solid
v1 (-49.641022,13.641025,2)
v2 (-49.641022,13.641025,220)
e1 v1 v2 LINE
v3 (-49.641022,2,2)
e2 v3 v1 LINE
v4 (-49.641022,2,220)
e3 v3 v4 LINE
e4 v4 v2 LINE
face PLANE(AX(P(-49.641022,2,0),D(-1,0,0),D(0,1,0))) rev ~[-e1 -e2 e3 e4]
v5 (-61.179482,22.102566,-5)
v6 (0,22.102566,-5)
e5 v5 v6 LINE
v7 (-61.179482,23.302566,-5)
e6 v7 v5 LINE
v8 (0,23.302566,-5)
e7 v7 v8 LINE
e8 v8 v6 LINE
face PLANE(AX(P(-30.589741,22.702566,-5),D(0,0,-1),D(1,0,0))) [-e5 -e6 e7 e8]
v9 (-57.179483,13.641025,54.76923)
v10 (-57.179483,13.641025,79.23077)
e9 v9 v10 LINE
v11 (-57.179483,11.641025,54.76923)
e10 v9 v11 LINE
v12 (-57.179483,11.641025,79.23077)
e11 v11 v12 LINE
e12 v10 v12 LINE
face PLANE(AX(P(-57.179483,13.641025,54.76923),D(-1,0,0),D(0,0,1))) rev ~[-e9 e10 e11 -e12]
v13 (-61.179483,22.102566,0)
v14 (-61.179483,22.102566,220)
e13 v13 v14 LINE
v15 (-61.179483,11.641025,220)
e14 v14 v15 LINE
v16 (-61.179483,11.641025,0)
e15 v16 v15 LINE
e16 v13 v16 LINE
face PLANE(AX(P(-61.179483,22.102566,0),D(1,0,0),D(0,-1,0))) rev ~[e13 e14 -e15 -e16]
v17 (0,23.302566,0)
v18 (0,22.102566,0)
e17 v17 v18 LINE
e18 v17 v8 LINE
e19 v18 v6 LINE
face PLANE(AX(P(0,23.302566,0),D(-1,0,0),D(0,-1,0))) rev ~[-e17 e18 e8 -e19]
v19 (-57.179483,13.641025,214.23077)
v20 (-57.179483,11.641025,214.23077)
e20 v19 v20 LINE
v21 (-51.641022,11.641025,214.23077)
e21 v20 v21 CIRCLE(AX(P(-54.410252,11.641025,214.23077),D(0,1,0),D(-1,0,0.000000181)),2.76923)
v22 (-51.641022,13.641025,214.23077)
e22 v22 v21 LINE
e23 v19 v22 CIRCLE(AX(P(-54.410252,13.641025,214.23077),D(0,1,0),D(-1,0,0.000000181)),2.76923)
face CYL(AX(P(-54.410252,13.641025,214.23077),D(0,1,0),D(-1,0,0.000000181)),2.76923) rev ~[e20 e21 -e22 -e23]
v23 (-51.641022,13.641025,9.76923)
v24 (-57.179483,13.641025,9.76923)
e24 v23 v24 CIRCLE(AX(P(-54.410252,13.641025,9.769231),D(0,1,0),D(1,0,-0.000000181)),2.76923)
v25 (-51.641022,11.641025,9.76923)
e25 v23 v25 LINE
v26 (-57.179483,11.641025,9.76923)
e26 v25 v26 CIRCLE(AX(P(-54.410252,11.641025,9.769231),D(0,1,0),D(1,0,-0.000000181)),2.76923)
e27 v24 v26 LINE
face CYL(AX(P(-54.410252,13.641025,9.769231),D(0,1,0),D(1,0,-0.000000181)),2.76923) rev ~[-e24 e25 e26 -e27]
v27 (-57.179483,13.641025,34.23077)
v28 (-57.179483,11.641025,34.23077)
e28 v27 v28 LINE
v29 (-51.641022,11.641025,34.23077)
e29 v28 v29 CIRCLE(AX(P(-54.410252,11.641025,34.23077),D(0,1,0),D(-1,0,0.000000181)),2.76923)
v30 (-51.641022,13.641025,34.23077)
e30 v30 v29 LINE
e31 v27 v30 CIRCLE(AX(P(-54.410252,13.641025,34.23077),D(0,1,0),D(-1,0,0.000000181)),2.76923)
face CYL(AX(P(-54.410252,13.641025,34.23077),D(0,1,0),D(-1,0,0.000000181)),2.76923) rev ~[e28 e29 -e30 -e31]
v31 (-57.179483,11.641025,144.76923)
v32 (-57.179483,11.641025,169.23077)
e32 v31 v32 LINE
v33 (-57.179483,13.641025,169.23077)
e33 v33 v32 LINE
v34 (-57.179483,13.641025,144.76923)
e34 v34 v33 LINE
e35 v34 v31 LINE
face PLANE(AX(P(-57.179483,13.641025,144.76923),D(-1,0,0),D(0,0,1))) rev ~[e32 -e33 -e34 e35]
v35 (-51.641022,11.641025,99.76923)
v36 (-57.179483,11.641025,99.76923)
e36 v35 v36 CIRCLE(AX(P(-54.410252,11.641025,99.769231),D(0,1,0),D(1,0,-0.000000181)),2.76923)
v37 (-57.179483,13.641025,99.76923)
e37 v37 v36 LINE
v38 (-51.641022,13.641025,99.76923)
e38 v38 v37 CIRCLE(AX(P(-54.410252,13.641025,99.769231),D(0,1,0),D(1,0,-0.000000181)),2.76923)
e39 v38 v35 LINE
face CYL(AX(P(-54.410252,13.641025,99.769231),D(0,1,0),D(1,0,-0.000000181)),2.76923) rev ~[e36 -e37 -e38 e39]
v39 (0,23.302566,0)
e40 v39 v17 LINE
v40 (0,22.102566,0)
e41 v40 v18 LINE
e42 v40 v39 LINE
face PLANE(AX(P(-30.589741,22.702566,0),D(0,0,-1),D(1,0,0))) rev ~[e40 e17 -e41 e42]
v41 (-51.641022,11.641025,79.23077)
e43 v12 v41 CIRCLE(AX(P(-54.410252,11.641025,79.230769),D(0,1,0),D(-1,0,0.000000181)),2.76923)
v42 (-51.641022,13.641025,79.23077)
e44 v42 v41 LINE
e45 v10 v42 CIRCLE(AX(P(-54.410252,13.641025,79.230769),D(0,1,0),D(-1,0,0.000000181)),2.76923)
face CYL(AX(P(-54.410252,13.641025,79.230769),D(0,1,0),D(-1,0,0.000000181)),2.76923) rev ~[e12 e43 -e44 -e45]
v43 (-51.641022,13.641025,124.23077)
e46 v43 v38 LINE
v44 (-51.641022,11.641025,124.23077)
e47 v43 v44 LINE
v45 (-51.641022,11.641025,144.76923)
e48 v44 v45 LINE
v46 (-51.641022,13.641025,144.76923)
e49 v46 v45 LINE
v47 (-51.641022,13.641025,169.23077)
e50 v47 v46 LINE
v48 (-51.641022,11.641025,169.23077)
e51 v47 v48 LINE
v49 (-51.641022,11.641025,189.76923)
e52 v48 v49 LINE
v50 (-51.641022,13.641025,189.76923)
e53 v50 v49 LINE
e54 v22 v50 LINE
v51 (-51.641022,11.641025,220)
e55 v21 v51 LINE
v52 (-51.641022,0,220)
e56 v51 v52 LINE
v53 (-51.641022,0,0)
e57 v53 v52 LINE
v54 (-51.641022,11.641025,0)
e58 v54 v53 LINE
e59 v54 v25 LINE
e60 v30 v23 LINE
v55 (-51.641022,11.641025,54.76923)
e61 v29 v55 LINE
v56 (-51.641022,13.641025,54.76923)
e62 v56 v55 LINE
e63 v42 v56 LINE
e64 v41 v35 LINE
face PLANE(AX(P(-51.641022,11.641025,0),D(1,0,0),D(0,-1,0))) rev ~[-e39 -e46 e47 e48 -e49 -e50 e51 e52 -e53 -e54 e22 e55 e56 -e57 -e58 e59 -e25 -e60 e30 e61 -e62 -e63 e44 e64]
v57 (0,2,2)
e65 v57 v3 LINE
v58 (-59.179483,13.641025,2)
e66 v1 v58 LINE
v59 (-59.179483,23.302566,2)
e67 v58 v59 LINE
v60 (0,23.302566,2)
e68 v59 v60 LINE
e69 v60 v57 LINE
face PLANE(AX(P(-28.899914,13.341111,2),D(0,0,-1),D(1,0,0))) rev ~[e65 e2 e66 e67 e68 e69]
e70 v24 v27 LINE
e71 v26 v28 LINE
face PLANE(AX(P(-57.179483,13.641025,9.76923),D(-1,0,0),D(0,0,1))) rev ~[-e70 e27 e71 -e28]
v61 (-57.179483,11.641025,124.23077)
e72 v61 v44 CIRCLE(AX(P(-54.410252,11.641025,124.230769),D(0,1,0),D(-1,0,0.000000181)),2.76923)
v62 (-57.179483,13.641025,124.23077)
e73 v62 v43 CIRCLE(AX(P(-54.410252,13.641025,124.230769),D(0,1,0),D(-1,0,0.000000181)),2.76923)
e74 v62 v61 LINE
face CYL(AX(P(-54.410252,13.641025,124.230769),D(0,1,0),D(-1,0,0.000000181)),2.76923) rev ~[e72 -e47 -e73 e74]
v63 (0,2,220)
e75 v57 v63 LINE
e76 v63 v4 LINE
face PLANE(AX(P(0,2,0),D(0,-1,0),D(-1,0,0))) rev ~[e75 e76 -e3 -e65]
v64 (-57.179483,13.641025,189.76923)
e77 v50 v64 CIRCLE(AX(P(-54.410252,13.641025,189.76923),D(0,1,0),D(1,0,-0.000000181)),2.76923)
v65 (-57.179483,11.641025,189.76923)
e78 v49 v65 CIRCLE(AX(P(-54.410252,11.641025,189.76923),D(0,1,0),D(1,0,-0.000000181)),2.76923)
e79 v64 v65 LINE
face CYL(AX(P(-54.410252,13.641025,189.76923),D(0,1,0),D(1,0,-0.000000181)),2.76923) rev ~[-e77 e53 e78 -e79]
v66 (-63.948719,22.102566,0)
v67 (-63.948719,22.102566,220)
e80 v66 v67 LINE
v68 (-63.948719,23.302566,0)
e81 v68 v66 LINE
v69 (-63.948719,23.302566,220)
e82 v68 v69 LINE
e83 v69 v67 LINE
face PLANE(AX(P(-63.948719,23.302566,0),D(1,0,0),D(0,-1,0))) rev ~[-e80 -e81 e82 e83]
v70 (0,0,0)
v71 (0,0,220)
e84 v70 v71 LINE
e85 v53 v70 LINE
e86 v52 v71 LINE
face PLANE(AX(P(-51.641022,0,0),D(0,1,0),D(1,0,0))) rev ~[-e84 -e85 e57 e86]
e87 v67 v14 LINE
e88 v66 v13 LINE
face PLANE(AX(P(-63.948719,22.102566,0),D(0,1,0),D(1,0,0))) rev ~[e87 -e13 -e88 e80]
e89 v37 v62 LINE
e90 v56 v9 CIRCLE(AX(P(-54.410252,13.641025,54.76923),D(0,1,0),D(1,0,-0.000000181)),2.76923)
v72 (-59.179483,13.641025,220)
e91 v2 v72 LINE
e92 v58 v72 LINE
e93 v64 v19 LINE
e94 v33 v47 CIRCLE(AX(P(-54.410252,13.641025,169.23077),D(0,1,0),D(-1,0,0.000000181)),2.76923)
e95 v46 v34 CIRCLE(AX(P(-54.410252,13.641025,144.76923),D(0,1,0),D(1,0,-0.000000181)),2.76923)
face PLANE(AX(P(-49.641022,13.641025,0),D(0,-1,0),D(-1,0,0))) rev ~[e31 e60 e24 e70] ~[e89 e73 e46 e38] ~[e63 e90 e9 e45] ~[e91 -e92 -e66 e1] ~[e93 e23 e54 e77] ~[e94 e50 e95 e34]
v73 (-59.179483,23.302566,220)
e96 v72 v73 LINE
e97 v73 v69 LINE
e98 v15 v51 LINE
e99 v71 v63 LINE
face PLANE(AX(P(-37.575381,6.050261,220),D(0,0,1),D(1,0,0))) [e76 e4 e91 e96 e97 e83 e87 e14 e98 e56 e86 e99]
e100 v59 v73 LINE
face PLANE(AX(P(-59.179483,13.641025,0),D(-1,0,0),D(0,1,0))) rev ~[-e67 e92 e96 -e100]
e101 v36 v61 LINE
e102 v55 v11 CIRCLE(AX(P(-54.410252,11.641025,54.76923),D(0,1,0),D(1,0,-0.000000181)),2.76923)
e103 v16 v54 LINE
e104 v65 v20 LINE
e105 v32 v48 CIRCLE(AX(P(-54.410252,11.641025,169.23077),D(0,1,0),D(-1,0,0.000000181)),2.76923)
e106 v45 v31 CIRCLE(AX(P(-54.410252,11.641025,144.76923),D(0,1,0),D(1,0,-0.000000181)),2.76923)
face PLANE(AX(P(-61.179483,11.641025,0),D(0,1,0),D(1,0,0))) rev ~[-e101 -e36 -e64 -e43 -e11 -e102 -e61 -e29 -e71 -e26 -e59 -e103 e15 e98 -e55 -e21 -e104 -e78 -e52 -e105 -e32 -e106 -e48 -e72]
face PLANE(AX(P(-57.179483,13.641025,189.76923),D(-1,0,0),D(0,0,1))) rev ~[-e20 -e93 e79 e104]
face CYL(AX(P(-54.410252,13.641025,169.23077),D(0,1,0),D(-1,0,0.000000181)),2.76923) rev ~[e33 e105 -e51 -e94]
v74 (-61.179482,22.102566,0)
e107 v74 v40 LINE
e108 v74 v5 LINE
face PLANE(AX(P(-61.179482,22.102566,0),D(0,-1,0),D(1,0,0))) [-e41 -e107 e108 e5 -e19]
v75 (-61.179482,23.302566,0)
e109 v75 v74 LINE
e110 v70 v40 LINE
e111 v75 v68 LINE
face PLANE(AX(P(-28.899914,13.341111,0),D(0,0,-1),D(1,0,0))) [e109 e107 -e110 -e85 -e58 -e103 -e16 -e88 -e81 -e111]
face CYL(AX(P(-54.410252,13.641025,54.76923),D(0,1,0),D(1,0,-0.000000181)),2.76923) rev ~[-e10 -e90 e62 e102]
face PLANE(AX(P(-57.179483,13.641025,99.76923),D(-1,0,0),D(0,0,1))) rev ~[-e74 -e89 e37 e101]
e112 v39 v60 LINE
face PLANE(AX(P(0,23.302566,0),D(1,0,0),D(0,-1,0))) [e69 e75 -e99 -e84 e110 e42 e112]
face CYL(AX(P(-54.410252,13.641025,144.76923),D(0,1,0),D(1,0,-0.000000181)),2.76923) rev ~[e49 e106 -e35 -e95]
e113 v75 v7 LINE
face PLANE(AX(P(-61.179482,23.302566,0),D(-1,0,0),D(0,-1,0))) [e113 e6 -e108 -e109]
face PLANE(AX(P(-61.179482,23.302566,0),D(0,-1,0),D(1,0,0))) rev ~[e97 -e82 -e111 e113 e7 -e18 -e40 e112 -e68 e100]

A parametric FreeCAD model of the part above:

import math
import FreeCAD as App
import Part
import Sketcher

doc = App.newDocument("Part")
body = doc.addObject("PartDesign::Body", "Body")

# Sketch on XY plane
sketch1 = body.newObject("Sketcher::SketchObject", "Sketch")
sketch1.AttachmentSupport = (doc.getObject("XY_Plane"), [""])
sketch1.MapMode = "FlatFace"
sketch1.addGeometry([
    Part.LineSegment(App.Vector(-51.6, 0, 0), App.Vector(0, 0, 0)),  # 0
    Part.LineSegment(App.Vector(0, 0, 0), App.Vector(0, 2, 0)),  # 1
    Part.LineSegment(App.Vector(0, 2, 0), App.Vector(-49.6, 2, 0)),  # 2
    Part.LineSegment(App.Vector(-49.6, 2, 0), App.Vector(-49.6, 13.6, 0)),  # 3
    Part.LineSegment(App.Vector(-49.6, 13.6, 0), App.Vector(-59.2, 13.6, 0)),  # 4
    Part.LineSegment(App.Vector(-59.2, 13.6, 0), App.Vector(-59.2, 23.3, 0)),  # 5
    Part.LineSegment(App.Vector(-59.2, 23.3, 0), App.Vector(-63.9, 23.3, 0)),  # 6
    Part.LineSegment(App.Vector(-63.9, 23.3, 0), App.Vector(-63.9, 22.1, 0)),  # 7
    Part.LineSegment(App.Vector(-63.9, 22.1, 0), App.Vector(-61.2, 22.1, 0)),  # 8
    Part.LineSegment(App.Vector(-61.2, 22.1, 0), App.Vector(-61.2, 11.6, 0)),  # 9
    Part.LineSegment(App.Vector(-61.2, 11.6, 0), App.Vector(-51.6, 11.6, 0)),  # 10
    Part.LineSegment(App.Vector(-51.6, 11.6, 0), App.Vector(-51.6, 0, 0)),  # 11
], False)
sketch1.addConstraint([
    Sketcher.Constraint("Coincident", 0, 2, 1, 1),
    Sketcher.Constraint("Coincident", 1, 2, 2, 1),
    Sketcher.Constraint("Coincident", 2, 2, 3, 1),
    Sketcher.Constraint("Coincident", 3, 2, 4, 1),
    Sketcher.Constraint("Coincident", 4, 2, 5, 1),
    Sketcher.Constraint("Coincident", 5, 2, 6, 1),
    Sketcher.Constraint("Coincident", 6, 2, 7, 1),
    Sketcher.Constraint("Coincident", 7, 2, 8, 1),
    Sketcher.Constraint("Coincident", 8, 2, 9, 1),
    Sketcher.Constraint("Coincident", 9, 2, 10, 1),
    Sketcher.Constraint("Coincident", 10, 2, 11, 1),
    Sketcher.Constraint("Coincident", 11, 2, 0, 1),
    Sketcher.Constraint("Horizontal", 0),
    Sketcher.Constraint("Vertical", 1),
    Sketcher.Constraint("Horizontal", 2),
    Sketcher.Constraint("Vertical", 3),
    Sketcher.Constraint("Horizontal", 4),
    Sketcher.Constraint("Vertical", 5),
    Sketcher.Constraint("Horizontal", 6),
    Sketcher.Constraint("Vertical", 7),
    Sketcher.Constraint("Horizontal", 8),
    Sketcher.Constraint("Vertical", 9),
    Sketcher.Constraint("Horizontal", 10),
    Sketcher.Constraint("Vertical", 11),
    Sketcher.Constraint("Coincident", 0, 2, -1, 1),
    Sketcher.Constraint("Equal", 4, 10),
    Sketcher.Constraint("Equal", 3, 11),
    Sketcher.Constraint("DistanceY", 1, 1, 1, 2, 2.0),
    Sketcher.Constraint("DistanceY", 7, 2, 7, 1, 1.2),
    Sketcher.Constraint("DistanceX", 8, 2, 5, 2, 2.0),
    Sketcher.Constraint("DistanceX", 4, 2, 4, 1, 9.538461),
    Sketcher.Constraint("DistanceY", 5, 1, 5, 2, 9.661541),
    Sketcher.Constraint("DistanceX", 0, 1, 0, 2, 51.641022),
    Sketcher.Constraint("DistanceX", 6, 2, 6, 1, 4.769236),
    Sketcher.Constraint("DistanceY", 3, 1, 3, 2, 11.641025),
])
pad1 = body.newObject("PartDesign::Pad", "Pad")
pad1.Profile = sketch1
pad1.Length = 220

# Sketch on XZ plane
sketch2 = body.newObject("Sketcher::SketchObject", "Sketch001")
sketch2.AttachmentSupport = (doc.getObject("XZ_Plane"), [""])
sketch2.MapMode = "FlatFace"
sketch2.AttachmentOffset = App.Placement(App.Vector(0, 0, -13.641025), App.Rotation())
sketch2.addGeometry([
    Part.LineSegment(App.Vector(-57.2, 189.8, 0), App.Vector(-57.2, 214.2, 0)),  # 0
    Part.ArcOfCircle(Part.Circle(App.Vector(-54.4, 214.2, 0), App.Vector(0, 0, 1), 2.8), math.radians(0), math.radians(180)),  # 1
    Part.LineSegment(App.Vector(-51.6, 214.2, 0), App.Vector(-51.6, 189.8, 0)),  # 2
    Part.ArcOfCircle(Part.Circle(App.Vector(-54.4, 189.8, 0), App.Vector(0, 0, 1), 2.8), math.radians(-180), math.radians(0)),  # 3
    Part.LineSegment(App.Vector(-57.2, 144.8, 0), App.Vector(-57.2, 169.2, 0)),  # 4
    Part.ArcOfCircle(Part.Circle(App.Vector(-54.4, 169.2, 0), App.Vector(0, 0, 1), 2.8), math.radians(0), math.radians(180)),  # 5
    Part.LineSegment(App.Vector(-51.6, 169.2, 0), App.Vector(-51.6, 144.8, 0)),  # 6
    Part.ArcOfCircle(Part.Circle(App.Vector(-54.4, 144.8, 0), App.Vector(0, 0, 1), 2.8), math.radians(-180), math.radians(0)),  # 7
    Part.LineSegment(App.Vector(-57.2, 99.8, 0), App.Vector(-57.2, 124.2, 0)),  # 8
    Part.ArcOfCircle(Part.Circle(App.Vector(-54.4, 124.2, 0), App.Vector(0, 0, 1), 2.8), math.radians(0), math.radians(180)),  # 9
    Part.LineSegment(App.Vector(-51.6, 124.2, 0), App.Vector(-51.6, 99.8, 0)),  # 10
    Part.ArcOfCircle(Part.Circle(App.Vector(-54.4, 99.8, 0), App.Vector(0, 0, 1), 2.8), math.radians(-180), math.radians(0)),  # 11
    Part.LineSegment(App.Vector(-57.2, 54.8, 0), App.Vector(-57.2, 79.2, 0)),  # 12
    Part.ArcOfCircle(Part.Circle(App.Vector(-54.4, 79.2, 0), App.Vector(0, 0, 1), 2.8), math.radians(0), math.radians(180)),  # 13
    Part.LineSegment(App.Vector(-51.6, 79.2, 0), App.Vector(-51.6, 54.8, 0)),  # 14
    Part.ArcOfCircle(Part.Circle(App.Vector(-54.4, 54.8, 0), App.Vector(0, 0, 1), 2.8), math.radians(-180), math.radians(0)),  # 15
    Part.LineSegment(App.Vector(-57.2, 9.8, 0), App.Vector(-57.2, 34.2, 0)),  # 16
    Part.ArcOfCircle(Part.Circle(App.Vector(-54.4, 34.2, 0), App.Vector(0, 0, 1), 2.8), math.radians(0), math.radians(180)),  # 17
    Part.LineSegment(App.Vector(-51.6, 34.2, 0), App.Vector(-51.6, 9.8, 0)),  # 18
    Part.ArcOfCircle(Part.Circle(App.Vector(-54.4, 9.8, 0), App.Vector(0, 0, 1), 2.8), math.radians(-180), math.radians(0)),  # 19
], False)
sketch2.addConstraint([
    Sketcher.Constraint("Tangent", 0, 2, 1, 2),
    Sketcher.Constraint("Tangent", 1, 1, 2, 1),
    Sketcher.Constraint("Tangent", 2, 2, 3, 2),
    Sketcher.Constraint("Tangent", 3, 1, 0, 1),
    Sketcher.Constraint("Tangent", 4, 2, 5, 2),
    Sketcher.Constraint("Tangent", 5, 1, 6, 1),
    Sketcher.Constraint("Tangent", 6, 2, 7, 2),
    Sketcher.Constraint("Tangent", 7, 1, 4, 1),
    Sketcher.Constraint("Tangent", 8, 2, 9, 2),
    Sketcher.Constraint("Tangent", 9, 1, 10, 1),
    Sketcher.Constraint("Tangent", 10, 2, 11, 2),
    Sketcher.Constraint("Tangent", 11, 1, 8, 1),
    Sketcher.Constraint("Tangent", 12, 2, 13, 2),
    Sketcher.Constraint("Tangent", 13, 1, 14, 1),
    Sketcher.Constraint("Tangent", 14, 2, 15, 2),
    Sketcher.Constraint("Tangent", 15, 1, 12, 1),
    Sketcher.Constraint("Tangent", 16, 2, 17, 2),
    Sketcher.Constraint("Tangent", 17, 1, 18, 1),
    Sketcher.Constraint("Tangent", 18, 2, 19, 2),
    Sketcher.Constraint("Tangent", 19, 1, 16, 1),
    Sketcher.Constraint("Vertical", 0),
    Sketcher.Constraint("Vertical", 2),
    Sketcher.Constraint("Vertical", 4),
    Sketcher.Constraint("Vertical", 6),
    Sketcher.Constraint("Vertical", 8),
    Sketcher.Constraint("Vertical", 10),
    Sketcher.Constraint("Vertical", 12),
    Sketcher.Constraint("Vertical", 14),
    Sketcher.Constraint("Vertical", 16),
    Sketcher.Constraint("Vertical", 18),
    Sketcher.Constraint("Equal", 3, 5),
    Sketcher.Constraint("Equal", 7, 9),
    Sketcher.Constraint("Equal", 11, 13),
    Sketcher.Constraint("Equal", 15, 17),
    Sketcher.Constraint("Vertical", 3, 3, 5, 3),
    Sketcher.Constraint("Vertical", 7, 3, 9, 3),
    Sketcher.Constraint("Vertical", 11, 3, 13, 3),
    Sketcher.Constraint("Vertical", 15, 3, 17, 3),
    Sketcher.Constraint("Equal", 2, 4),
    Sketcher.Constraint("Equal", 6, 8),
    Sketcher.Constraint("Equal", 10, 12),
    Sketcher.Constraint("Equal", 14, 16),
    Sketcher.Constraint("DistanceY", 5, 3, 1, 3, 45.0),
    Sketcher.Constraint("DistanceY", 9, 3, 5, 3, 45.0),
    Sketcher.Constraint("DistanceY", 13, 3, 9, 3, 45.0),
    Sketcher.Constraint("DistanceY", 17, 3, 13, 3, 45.0),
    Sketcher.Constraint("Radius", 1, 2.76923),
    Sketcher.Constraint("DistanceY", 0, 1, 0, 2, 24.46154),
    Sketcher.Constraint("DistanceY", -1, 1, 1, 3, 214.23077),
    Sketcher.Constraint("DistanceX", 1, 3, -1, 1, 54.410252),
])
pocket1 = body.newObject("PartDesign::Pocket", "Pocket")
pocket1.Profile = sketch2
pocket1.Type = "ThroughAll"
pocket1.Reversed = True

# Sketch on XY plane
sketch3 = body.newObject("Sketcher::SketchObject", "Sketch002")
sketch3.AttachmentSupport = (doc.getObject("XY_Plane"), [""])
sketch3.MapMode = "FlatFace"
sketch3.addGeometry([
    Part.LineSegment(App.Vector(-59, 14, 0), App.Vector(-59, 23, 0)),  # 0
    Part.LineSegment(App.Vector(-59, 23, 0), App.Vector(0, 23, 0)),  # 1
    Part.LineSegment(App.Vector(0, 23, 0), App.Vector(0, 2, 0)),  # 2
    Part.LineSegment(App.Vector(0, 2, 0), App.Vector(-50, 2, 0)),  # 3
    Part.LineSegment(App.Vector(-50, 2, 0), App.Vector(-50, 14, 0)),  # 4
    Part.LineSegment(App.Vector(-50, 14, 0), App.Vector(-59, 14, 0)),  # 5
], False)
sketch3.addConstraint([
    Sketcher.Constraint("Coincident", 0, 2, 1, 1),
    Sketcher.Constraint("Coincident", 1, 2, 2, 1),
    Sketcher.Constraint("Coincident", 2, 2, 3, 1),
    Sketcher.Constraint("Coincident", 3, 2, 4, 1),
    Sketcher.Constraint("Coincident", 4, 2, 5, 1),
    Sketcher.Constraint("Coincident", 5, 2, 0, 1),
    Sketcher.Constraint("Vertical", 0),
    Sketcher.Constraint("Horizontal", 1),
    Sketcher.Constraint("Vertical", 2),
    Sketcher.Constraint("Horizontal", 3),
    Sketcher.Constraint("Vertical", 4),
    Sketcher.Constraint("Horizontal", 5),
    Sketcher.Constraint("PointOnObject", 1, 2, -2),
    Sketcher.Constraint("DistanceY", -1, 1, 2, 2, 2.0),
    Sketcher.Constraint("DistanceX", 5, 2, 5, 1, 9.538461),
    Sketcher.Constraint("DistanceY", 0, 1, 0, 2, 9.661541),
    Sketcher.Constraint("DistanceX", 1, 1, 1, 2, 59.179483),
    Sketcher.Constraint("DistanceY", 2, 2, 2, 1, 21.302566),
])
pad2 = body.newObject("PartDesign::Pad", "Pad001")
pad2.Profile = sketch3
pad2.Length = 2

# Sketch on XY plane
sketch4 = body.newObject("Sketcher::SketchObject", "Sketch003")
sketch4.AttachmentSupport = (doc.getObject("XY_Plane"), [""])
sketch4.MapMode = "FlatFace"
sketch4.addGeometry([
    Part.LineSegment(App.Vector(-61.2, 22.1, 0), App.Vector(-61.2, 23.3, 0)),
    Part.LineSegment(App.Vector(-61.2, 23.3, 0), App.Vector(0, 23.3, 0)),
    Part.LineSegment(App.Vector(0, 23.3, 0), App.Vector(0, 22.1, 0)),
    Part.LineSegment(App.Vector(0, 22.1, 0), App.Vector(-61.2, 22.1, 0)),
], False)
sketch4.addConstraint([
    Sketcher.Constraint("Coincident", 0, 2, 1, 1),
    Sketcher.Constraint("Coincident", 1, 2, 2, 1),
    Sketcher.Constraint("Coincident", 2, 2, 3, 1),
    Sketcher.Constraint("Coincident", 3, 2, 0, 1),
    Sketcher.Constraint("Vertical", 0),
    Sketcher.Constraint("Horizontal", 1),
    Sketcher.Constraint("Vertical", 2),
    Sketcher.Constraint("Horizontal", 3),
    Sketcher.Constraint("PointOnObject", 1, 2, -2),
    Sketcher.Constraint("DistanceY", 0, 1, 0, 2, 1.2),
    Sketcher.Constraint("DistanceX", 1, 1, 1, 2, 61.179483),
    Sketcher.Constraint("DistanceY", -1, 1, 0, 2, 23.302566),
])
pad3 = body.newObject("PartDesign::Pad", "Pad002")
pad3.Profile = sketch4
pad3.Length = 5
pad3.Reversed = True

doc.recompute()
